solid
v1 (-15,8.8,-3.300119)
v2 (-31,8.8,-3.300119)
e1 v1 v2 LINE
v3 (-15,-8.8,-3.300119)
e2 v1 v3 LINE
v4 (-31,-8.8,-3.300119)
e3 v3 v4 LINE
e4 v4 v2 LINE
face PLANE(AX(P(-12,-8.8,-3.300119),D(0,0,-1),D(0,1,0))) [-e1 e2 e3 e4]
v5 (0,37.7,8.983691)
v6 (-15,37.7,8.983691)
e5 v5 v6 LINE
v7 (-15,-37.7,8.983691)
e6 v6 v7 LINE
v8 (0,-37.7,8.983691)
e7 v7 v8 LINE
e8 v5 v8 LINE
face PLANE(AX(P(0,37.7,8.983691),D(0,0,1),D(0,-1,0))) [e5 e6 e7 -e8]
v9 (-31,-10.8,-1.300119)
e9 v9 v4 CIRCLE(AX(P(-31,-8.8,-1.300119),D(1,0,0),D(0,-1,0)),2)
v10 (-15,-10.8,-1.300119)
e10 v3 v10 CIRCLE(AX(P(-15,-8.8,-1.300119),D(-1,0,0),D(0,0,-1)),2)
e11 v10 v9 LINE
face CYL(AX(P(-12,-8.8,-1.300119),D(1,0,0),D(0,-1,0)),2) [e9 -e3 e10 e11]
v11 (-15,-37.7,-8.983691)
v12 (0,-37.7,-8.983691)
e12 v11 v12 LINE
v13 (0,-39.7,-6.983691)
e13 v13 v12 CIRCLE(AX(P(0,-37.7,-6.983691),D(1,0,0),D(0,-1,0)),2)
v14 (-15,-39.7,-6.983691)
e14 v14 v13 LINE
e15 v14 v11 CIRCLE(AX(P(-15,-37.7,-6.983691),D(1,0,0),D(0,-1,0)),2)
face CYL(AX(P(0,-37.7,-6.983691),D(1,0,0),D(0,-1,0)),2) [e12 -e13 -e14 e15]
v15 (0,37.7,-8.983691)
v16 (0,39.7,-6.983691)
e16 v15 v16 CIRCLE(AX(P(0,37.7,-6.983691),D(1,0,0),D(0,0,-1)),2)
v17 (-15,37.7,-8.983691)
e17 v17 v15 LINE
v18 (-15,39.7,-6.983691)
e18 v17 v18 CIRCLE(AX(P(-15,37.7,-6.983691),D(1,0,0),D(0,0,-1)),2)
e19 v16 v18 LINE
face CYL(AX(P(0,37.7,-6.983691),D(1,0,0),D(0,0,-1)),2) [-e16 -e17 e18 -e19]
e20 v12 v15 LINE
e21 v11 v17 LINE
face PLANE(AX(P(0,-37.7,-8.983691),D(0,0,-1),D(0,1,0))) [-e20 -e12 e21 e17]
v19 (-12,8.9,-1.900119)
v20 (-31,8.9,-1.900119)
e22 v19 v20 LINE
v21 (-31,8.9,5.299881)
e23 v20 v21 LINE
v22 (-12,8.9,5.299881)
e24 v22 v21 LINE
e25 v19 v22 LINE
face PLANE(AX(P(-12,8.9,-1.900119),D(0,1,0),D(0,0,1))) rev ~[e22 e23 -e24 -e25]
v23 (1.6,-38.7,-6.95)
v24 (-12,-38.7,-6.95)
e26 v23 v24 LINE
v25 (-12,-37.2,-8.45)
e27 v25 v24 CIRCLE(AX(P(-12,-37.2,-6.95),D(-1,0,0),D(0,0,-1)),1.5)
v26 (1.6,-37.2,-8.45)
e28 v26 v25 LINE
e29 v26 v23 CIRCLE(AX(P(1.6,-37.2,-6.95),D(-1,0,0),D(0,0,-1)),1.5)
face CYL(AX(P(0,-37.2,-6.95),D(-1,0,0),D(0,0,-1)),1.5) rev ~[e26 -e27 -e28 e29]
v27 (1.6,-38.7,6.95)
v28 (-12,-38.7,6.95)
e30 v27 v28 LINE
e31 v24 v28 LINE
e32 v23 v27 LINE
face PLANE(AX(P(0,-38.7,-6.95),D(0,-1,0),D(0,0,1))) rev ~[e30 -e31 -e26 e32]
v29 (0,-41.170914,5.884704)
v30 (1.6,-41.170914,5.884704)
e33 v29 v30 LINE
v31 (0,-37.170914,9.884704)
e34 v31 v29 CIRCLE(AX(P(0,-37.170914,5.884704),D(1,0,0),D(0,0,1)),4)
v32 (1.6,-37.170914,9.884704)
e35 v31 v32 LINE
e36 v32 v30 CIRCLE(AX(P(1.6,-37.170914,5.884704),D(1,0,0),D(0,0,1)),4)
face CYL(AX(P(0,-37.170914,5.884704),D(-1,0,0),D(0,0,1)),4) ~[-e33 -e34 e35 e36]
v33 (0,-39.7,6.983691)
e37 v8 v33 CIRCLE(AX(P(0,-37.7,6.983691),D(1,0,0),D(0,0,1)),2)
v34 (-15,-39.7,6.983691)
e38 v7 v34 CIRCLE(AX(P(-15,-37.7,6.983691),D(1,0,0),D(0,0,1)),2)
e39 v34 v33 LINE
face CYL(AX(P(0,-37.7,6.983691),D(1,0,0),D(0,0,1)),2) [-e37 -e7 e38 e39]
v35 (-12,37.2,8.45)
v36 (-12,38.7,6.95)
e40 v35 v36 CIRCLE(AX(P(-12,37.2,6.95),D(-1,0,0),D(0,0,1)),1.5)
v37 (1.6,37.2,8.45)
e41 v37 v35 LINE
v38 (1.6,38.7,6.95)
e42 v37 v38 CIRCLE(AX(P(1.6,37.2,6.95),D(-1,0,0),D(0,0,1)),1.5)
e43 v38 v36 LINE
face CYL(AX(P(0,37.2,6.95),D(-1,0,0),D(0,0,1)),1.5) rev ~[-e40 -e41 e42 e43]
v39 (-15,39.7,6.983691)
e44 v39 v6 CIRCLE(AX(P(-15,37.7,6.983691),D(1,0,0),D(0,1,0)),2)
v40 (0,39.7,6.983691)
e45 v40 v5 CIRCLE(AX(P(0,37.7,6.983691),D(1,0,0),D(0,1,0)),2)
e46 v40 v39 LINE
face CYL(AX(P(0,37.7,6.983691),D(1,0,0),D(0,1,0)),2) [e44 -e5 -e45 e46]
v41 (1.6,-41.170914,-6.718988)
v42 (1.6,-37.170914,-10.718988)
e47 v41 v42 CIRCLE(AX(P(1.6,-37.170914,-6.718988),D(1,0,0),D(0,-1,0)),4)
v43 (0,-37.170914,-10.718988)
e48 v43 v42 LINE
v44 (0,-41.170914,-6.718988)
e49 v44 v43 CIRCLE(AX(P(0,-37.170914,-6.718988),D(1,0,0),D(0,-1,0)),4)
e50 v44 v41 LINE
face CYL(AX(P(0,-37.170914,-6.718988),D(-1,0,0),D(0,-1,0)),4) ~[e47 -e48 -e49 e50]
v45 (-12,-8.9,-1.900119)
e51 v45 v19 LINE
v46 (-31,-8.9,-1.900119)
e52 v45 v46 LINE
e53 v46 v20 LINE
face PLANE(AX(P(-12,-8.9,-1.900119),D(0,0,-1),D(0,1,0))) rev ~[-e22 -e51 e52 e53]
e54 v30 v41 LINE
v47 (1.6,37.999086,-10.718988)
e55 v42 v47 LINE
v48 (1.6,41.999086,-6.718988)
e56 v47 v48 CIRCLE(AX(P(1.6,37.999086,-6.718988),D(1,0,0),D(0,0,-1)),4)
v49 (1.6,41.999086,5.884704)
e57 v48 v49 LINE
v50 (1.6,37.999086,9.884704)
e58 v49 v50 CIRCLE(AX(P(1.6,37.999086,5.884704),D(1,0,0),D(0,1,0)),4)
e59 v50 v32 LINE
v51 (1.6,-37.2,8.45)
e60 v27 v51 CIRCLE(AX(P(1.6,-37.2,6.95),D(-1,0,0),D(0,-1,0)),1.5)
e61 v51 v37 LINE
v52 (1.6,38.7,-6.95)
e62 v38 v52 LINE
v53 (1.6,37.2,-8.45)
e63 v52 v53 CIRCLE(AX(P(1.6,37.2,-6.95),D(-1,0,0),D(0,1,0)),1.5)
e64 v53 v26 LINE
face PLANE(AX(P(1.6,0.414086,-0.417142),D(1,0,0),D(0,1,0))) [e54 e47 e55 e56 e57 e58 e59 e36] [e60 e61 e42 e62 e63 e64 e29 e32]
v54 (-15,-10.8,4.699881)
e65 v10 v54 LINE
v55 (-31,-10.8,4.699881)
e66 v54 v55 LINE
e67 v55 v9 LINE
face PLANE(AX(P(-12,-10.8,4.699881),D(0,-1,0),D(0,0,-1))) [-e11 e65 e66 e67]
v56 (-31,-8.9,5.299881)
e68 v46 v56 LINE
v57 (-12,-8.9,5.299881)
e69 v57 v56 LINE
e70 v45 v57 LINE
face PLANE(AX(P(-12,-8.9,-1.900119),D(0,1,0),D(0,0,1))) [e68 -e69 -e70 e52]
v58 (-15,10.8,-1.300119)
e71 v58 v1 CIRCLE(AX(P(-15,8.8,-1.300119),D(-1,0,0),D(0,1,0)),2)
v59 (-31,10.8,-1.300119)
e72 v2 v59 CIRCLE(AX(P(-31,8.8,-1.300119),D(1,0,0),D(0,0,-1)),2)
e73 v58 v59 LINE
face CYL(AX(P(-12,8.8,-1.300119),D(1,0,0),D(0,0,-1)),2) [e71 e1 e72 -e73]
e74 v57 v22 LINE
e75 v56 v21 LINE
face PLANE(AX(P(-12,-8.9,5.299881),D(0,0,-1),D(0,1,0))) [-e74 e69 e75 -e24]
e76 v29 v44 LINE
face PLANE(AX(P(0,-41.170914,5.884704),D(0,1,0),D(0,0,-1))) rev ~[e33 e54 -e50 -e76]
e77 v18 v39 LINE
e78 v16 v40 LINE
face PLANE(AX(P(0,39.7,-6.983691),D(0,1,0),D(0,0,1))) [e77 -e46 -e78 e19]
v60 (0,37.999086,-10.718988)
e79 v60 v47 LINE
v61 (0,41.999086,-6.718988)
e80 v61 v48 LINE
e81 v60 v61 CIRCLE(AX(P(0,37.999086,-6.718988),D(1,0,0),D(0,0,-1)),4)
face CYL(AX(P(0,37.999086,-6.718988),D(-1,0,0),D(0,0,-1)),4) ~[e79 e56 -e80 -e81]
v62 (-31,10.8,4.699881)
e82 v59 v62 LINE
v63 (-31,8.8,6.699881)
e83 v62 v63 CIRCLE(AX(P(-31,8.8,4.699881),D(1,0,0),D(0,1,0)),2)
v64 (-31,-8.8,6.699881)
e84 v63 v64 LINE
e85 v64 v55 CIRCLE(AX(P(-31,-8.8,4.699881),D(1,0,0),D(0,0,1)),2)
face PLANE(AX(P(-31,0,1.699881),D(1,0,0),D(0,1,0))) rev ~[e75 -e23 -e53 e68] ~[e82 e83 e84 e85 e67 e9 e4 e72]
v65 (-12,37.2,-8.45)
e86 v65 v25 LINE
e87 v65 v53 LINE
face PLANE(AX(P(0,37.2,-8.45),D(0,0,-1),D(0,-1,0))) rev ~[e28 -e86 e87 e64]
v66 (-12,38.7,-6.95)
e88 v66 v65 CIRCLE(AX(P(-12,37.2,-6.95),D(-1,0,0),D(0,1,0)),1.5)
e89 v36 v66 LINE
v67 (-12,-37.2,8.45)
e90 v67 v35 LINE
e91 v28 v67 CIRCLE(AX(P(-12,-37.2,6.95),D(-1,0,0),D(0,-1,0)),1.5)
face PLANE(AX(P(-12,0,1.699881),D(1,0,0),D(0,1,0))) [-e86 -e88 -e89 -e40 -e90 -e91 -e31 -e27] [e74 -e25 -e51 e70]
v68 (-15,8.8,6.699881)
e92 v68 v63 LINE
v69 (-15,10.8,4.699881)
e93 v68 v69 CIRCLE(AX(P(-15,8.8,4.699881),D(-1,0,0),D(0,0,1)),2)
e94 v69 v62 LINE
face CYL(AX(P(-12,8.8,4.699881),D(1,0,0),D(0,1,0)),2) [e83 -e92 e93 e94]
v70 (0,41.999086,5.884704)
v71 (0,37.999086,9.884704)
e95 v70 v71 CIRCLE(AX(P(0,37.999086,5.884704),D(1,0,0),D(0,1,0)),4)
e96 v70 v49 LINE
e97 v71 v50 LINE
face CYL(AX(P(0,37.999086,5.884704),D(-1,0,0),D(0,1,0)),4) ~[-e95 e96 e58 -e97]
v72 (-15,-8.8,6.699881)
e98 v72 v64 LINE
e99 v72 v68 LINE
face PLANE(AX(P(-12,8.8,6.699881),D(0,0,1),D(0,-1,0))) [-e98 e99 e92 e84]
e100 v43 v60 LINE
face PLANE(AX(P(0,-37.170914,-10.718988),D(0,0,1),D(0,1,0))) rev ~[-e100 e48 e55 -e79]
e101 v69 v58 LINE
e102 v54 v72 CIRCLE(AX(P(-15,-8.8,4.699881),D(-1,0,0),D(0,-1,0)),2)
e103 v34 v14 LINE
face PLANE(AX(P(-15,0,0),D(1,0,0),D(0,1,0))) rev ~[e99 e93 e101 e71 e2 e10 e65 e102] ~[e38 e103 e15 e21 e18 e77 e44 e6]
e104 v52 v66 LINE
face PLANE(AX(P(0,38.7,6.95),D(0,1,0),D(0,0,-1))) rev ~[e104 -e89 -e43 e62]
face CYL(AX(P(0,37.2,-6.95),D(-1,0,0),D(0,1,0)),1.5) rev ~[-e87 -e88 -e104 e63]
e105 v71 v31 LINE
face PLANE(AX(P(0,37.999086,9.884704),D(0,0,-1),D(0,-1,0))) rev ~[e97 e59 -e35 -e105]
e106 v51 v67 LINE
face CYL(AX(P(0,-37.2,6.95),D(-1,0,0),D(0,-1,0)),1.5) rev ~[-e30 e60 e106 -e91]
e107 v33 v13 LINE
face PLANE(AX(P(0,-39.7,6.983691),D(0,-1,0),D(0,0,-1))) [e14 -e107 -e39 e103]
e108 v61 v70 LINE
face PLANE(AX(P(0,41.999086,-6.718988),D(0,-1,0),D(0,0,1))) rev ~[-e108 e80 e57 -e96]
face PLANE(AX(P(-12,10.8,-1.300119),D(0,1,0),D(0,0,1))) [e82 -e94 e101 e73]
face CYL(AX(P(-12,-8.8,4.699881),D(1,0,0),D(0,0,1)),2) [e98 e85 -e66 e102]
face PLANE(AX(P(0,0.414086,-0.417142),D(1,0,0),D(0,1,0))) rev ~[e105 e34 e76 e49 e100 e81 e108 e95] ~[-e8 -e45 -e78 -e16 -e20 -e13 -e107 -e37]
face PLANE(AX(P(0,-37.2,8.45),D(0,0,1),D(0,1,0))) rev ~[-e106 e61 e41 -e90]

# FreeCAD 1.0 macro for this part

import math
import FreeCAD as App
import Part
import Sketcher

V = App.Vector

doc = App.newDocument("Part")
body = doc.addObject("PartDesign::Body", "Body")

# Sketch on YZ plane
sketch1 = body.newObject("Sketcher::SketchObject", "Sketch")
sketch1.AttachmentSupport = (doc.getObject("YZ_Plane"), [""])
sketch1.MapMode = "FlatFace"
sketch1.addGeometry([
    Part.LineSegment(V(37.7, 9, 0), V(-37.7, 9, 0)),  # 0
    Part.ArcOfCircle(Part.Circle(V(-37.7, 7, 0), V(0, 0, 1), 2), math.radians(90), math.radians(180)),  # 1
    Part.LineSegment(V(-39.7, 7, 0), V(-39.7, -7, 0)),  # 2
    Part.ArcOfCircle(Part.Circle(V(-37.7, -7, 0), V(0, 0, 1), 2), math.radians(180), math.radians(270)),  # 3
    Part.LineSegment(V(-37.7, -9, 0), V(37.7, -9, 0)),  # 4
    Part.ArcOfCircle(Part.Circle(V(37.7, -7, 0), V(0, 0, 1), 2), math.radians(-90), math.radians(0)),  # 5
    Part.LineSegment(V(39.7, -7, 0), V(39.7, 7, 0)),  # 6
    Part.ArcOfCircle(Part.Circle(V(37.7, 7, 0), V(0, 0, 1), 2), math.radians(0), math.radians(90)),  # 7
    Part.ArcOfCircle(Part.Circle(V(37.2, -7, 0), V(0, 0, 1), 1.5), math.radians(-90), math.radians(0)),  # 8
    Part.LineSegment(V(37.2, -8.4, 0), V(-37.2, -8.4, 0)),  # 9
    Part.ArcOfCircle(Part.Circle(V(-37.2, -7, 0), V(0, 0, 1), 1.5), math.radians(180), math.radians(270)),  # 10
    Part.LineSegment(V(-38.7, -7, 0), V(-38.7, 7, 0)),  # 11
    Part.ArcOfCircle(Part.Circle(V(-37.2, 7, 0), V(0, 0, 1), 1.5), math.radians(90), math.radians(180)),  # 12
    Part.LineSegment(V(-37.2, 8.4, 0), V(37.2, 8.4, 0)),  # 13
    Part.ArcOfCircle(Part.Circle(V(37.2, 7, 0), V(0, 0, 1), 1.5), math.radians(0), math.radians(90)),  # 14
    Part.LineSegment(V(38.7, 7, 0), V(38.7, -7, 0)),  # 15
], False)
sketch1.addConstraint([
    Sketcher.Constraint("Tangent", 0, 2, 1, 1),
    Sketcher.Constraint("Tangent", 1, 2, 2, 1),
    Sketcher.Constraint("Tangent", 2, 2, 3, 1),
    Sketcher.Constraint("Tangent", 3, 2, 4, 1),
    Sketcher.Constraint("Tangent", 4, 2, 5, 1),
    Sketcher.Constraint("Tangent", 5, 2, 6, 1),
    Sketcher.Constraint("Tangent", 6, 2, 7, 1),
    Sketcher.Constraint("Tangent", 7, 2, 0, 1),
    Sketcher.Constraint("Tangent", 8, 1, 9, 1),
    Sketcher.Constraint("Tangent", 9, 2, 10, 2),
    Sketcher.Constraint("Tangent", 10, 1, 11, 1),
    Sketcher.Constraint("Tangent", 11, 2, 12, 2),
    Sketcher.Constraint("Tangent", 12, 1, 13, 1),
    Sketcher.Constraint("Tangent", 13, 2, 14, 2),
    Sketcher.Constraint("Tangent", 14, 1, 15, 1),
    Sketcher.Constraint("Tangent", 15, 2, 8, 2),
    Sketcher.Constraint("Horizontal", 0),
    Sketcher.Constraint("Vertical", 2),
    Sketcher.Constraint("Horizontal", 4),
    Sketcher.Constraint("Vertical", 6),
    Sketcher.Constraint("Horizontal", 9),
    Sketcher.Constraint("Vertical", 11),
    Sketcher.Constraint("Horizontal", 13),
    Sketcher.Constraint("Vertical", 15),
    Sketcher.Constraint("Equal", 1, 3),
    Sketcher.Constraint("Equal", 3, 5),
    Sketcher.Constraint("Equal", 5, 7),
    Sketcher.Constraint("Equal", 8, 10),
    Sketcher.Constraint("Equal", 10, 12),
    Sketcher.Constraint("Equal", 12, 14),
    Sketcher.Constraint("Symmetric", 1, 3, 5, 3, -1, 1),
    Sketcher.Constraint("Symmetric", 8, 3, 12, 3, -1, 1),
    Sketcher.Constraint("Radius", 1, 2.0),
    Sketcher.Constraint("Radius", 8, 1.5),
    Sketcher.Constraint("DistanceX", 0, 2, 0, 1, 75.4),
    Sketcher.Constraint("DistanceX", 9, 2, 9, 1, 74.4),
    Sketcher.Constraint("DistanceY", 11, 1, 11, 2, 13.9),
    Sketcher.Constraint("DistanceY", 2, 2, 2, 1, 13.967382),
])
pad1 = body.newObject("PartDesign::Pad", "Pad")
pad1.Profile = sketch1
pad1.Length = 13
pad1.Reversed = True

# Sketch on YZ plane
sketch2 = body.newObject("Sketcher::SketchObject", "Sketch001")
sketch2.AttachmentSupport = (doc.getObject("YZ_Plane"), [""])
sketch2.MapMode = "FlatFace"
sketch2.addGeometry([
    Part.ArcOfCircle(Part.Circle(V(-37.2, -6.7, 0), V(0, 0, 1), 4), math.radians(180), math.radians(270)),  # 0
    Part.LineSegment(V(-37.2, -10.7, 0), V(38, -10.7, 0)),  # 1
    Part.ArcOfCircle(Part.Circle(V(38, -6.7, 0), V(0, 0, 1), 4), math.radians(-90), math.radians(0)),  # 2
    Part.LineSegment(V(42, -6.7, 0), V(42, 5.9, 0)),  # 3
    Part.ArcOfCircle(Part.Circle(V(38, 5.9, 0), V(0, 0, 1), 4), math.radians(0), math.radians(90)),  # 4
    Part.LineSegment(V(38, 9.9, 0), V(-37.2, 9.9, 0)),  # 5
    Part.ArcOfCircle(Part.Circle(V(-37.2, 5.9, 0), V(0, 0, 1), 4), math.radians(90), math.radians(180)),  # 6
    Part.LineSegment(V(-41.2, 5.9, 0), V(-41.2, -6.7, 0)),  # 7
    Part.ArcOfCircle(Part.Circle(V(37.2, -7, 0), V(0, 0, 1), 1.5), math.radians(-90), math.radians(0)),  # 8
    Part.LineSegment(V(37.2, -8.4, 0), V(-37.2, -8.4, 0)),  # 9
    Part.ArcOfCircle(Part.Circle(V(-37.2, -7, 0), V(0, 0, 1), 1.5), math.radians(180), math.radians(270)),  # 10
    Part.LineSegment(V(-38.7, -7, 0), V(-38.7, 7, 0)),  # 11
    Part.ArcOfCircle(Part.Circle(V(-37.2, 7, 0), V(0, 0, 1), 1.5), math.radians(90), math.radians(180)),  # 12
    Part.LineSegment(V(-37.2, 8.4, 0), V(37.2, 8.4, 0)),  # 13
    Part.ArcOfCircle(Part.Circle(V(37.2, 7, 0), V(0, 0, 1), 1.5), math.radians(0), math.radians(90)),  # 14
    Part.LineSegment(V(38.7, 7, 0), V(38.7, -7, 0)),  # 15
], False)
sketch2.addConstraint([
    Sketcher.Constraint("Tangent", 0, 2, 1, 1),
    Sketcher.Constraint("Tangent", 1, 2, 2, 1),
    Sketcher.Constraint("Tangent", 2, 2, 3, 1),
    Sketcher.Constraint("Tangent", 3, 2, 4, 1),
    Sketcher.Constraint("Tangent", 4, 2, 5, 1),
    Sketcher.Constraint("Tangent", 5, 2, 6, 1),
    Sketcher.Constraint("Tangent", 6, 2, 7, 1),
    Sketcher.Constraint("Tangent", 7, 2, 0, 1),
    Sketcher.Constraint("Tangent", 8, 1, 9, 1),
    Sketcher.Constraint("Tangent", 9, 2, 10, 2),
    Sketcher.Constraint("Tangent", 10, 1, 11, 1),
    Sketcher.Constraint("Tangent", 11, 2, 12, 2),
    Sketcher.Constraint("Tangent", 12, 1, 13, 1),
    Sketcher.Constraint("Tangent", 13, 2, 14, 2),
    Sketcher.Constraint("Tangent", 14, 1, 15, 1),
    Sketcher.Constraint("Tangent", 15, 2, 8, 2),
    Sketcher.Constraint("Horizontal", 1),
    Sketcher.Constraint("Vertical", 3),
    Sketcher.Constraint("Horizontal", 5),
    Sketcher.Constraint("Vertical", 7),
    Sketcher.Constraint("Horizontal", 9),
    Sketcher.Constraint("Vertical", 11),
    Sketcher.Constraint("Horizontal", 13),
    Sketcher.Constraint("Vertical", 15),
    Sketcher.Constraint("Equal", 0, 2),
    Sketcher.Constraint("Equal", 2, 4),
    Sketcher.Constraint("Equal", 4, 6),
    Sketcher.Constraint("Equal", 8, 10),
    Sketcher.Constraint("Equal", 10, 12),
    Sketcher.Constraint("Equal", 12, 14),
    Sketcher.Constraint("Symmetric", 8, 3, 12, 3, -1, 1),
    Sketcher.Constraint("Radius", 0, 4.0),
    Sketcher.Constraint("Radius", 8, 1.5),
    Sketcher.Constraint("DistanceX", 9, 2, 9, 1, 74.4),
    Sketcher.Constraint("DistanceY", 11, 1, 11, 2, 13.9),
    Sketcher.Constraint("DistanceX", 1, 1, 1, 2, 75.17),
    Sketcher.Constraint("DistanceY", 3, 1, 3, 2, 12.603691),
    Sketcher.Constraint("DistanceX", 0, 3, -1, 1, 37.170914),
    Sketcher.Constraint("DistanceY", 0, 3, -1, 1, 6.718988),
])
pad2 = body.newObject("PartDesign::Pad", "Pad001")
pad2.Profile = sketch2
pad2.Length = 1.6

# Sketch on YZ plane
sketch3 = body.newObject("Sketcher::SketchObject", "Sketch002")
sketch3.AttachmentSupport = (doc.getObject("YZ_Plane"), [""])
sketch3.MapMode = "FlatFace"
sketch3.AttachmentOffset = App.Placement(V(0, 0, -12), App.Rotation())
sketch3.addGeometry([
    Part.LineSegment(V(37.7, 9, 0), V(-37.7, 9, 0)),  # 0
    Part.ArcOfCircle(Part.Circle(V(-37.7, 7, 0), V(0, 0, 1), 2), math.radians(90), math.radians(180)),  # 1
    Part.LineSegment(V(-39.7, 7, 0), V(-39.7, -7, 0)),  # 2
    Part.ArcOfCircle(Part.Circle(V(-37.7, -7, 0), V(0, 0, 1), 2), math.radians(180), math.radians(270)),  # 3
    Part.LineSegment(V(-37.7, -9, 0), V(37.7, -9, 0)),  # 4
    Part.ArcOfCircle(Part.Circle(V(37.7, -7, 0), V(0, 0, 1), 2), math.radians(-90), math.radians(0)),  # 5
    Part.LineSegment(V(39.7, -7, 0), V(39.7, 7, 0)),  # 6
    Part.ArcOfCircle(Part.Circle(V(37.7, 7, 0), V(0, 0, 1), 2), math.radians(0), math.radians(90)),  # 7
    Part.LineSegment(V(10.8, 4.7, 0), V(10.8, -1.3, 0)),  # 8
    Part.ArcOfCircle(Part.Circle(V(8.8, -1.3, 0), V(0, 0, 1), 2), math.radians(-90), math.radians(0)),  # 9
    Part.LineSegment(V(8.8, -3.3, 0), V(-8.8, -3.3, 0)),  # 10
    Part.ArcOfCircle(Part.Circle(V(-8.8, -1.3, 0), V(0, 0, 1), 2), math.radians(180), math.radians(270)),  # 11
    Part.LineSegment(V(-10.8, -1.3, 0), V(-10.8, 4.7, 0)),  # 12
    Part.ArcOfCircle(Part.Circle(V(-8.8, 4.7, 0), V(0, 0, 1), 2), math.radians(90), math.radians(180)),  # 13
    Part.LineSegment(V(-8.8, 6.7, 0), V(8.8, 6.7, 0)),  # 14
    Part.ArcOfCircle(Part.Circle(V(8.8, 4.7, 0), V(0, 0, 1), 2), math.radians(0), math.radians(90)),  # 15
], False)
sketch3.addConstraint([
    Sketcher.Constraint("Tangent", 0, 2, 1, 1),
    Sketcher.Constraint("Tangent", 1, 2, 2, 1),
    Sketcher.Constraint("Tangent", 2, 2, 3, 1),
    Sketcher.Constraint("Tangent", 3, 2, 4, 1),
    Sketcher.Constraint("Tangent", 4, 2, 5, 1),
    Sketcher.Constraint("Tangent", 5, 2, 6, 1),
    Sketcher.Constraint("Tangent", 6, 2, 7, 1),
    Sketcher.Constraint("Tangent", 7, 2, 0, 1),
    Sketcher.Constraint("Tangent", 8, 2, 9, 2),
    Sketcher.Constraint("Tangent", 9, 1, 10, 1),
    Sketcher.Constraint("Tangent", 10, 2, 11, 2),
    Sketcher.Constraint("Tangent", 11, 1, 12, 1),
    Sketcher.Constraint("Tangent", 12, 2, 13, 2),
    Sketcher.Constraint("Tangent", 13, 1, 14, 1),
    Sketcher.Constraint("Tangent", 14, 2, 15, 2),
    Sketcher.Constraint("Tangent", 15, 1, 8, 1),
    Sketcher.Constraint("Horizontal", 0),
    Sketcher.Constraint("Vertical", 2),
    Sketcher.Constraint("Horizontal", 4),
    Sketcher.Constraint("Vertical", 6),
    Sketcher.Constraint("Vertical", 8),
    Sketcher.Constraint("Horizontal", 10),
    Sketcher.Constraint("Vertical", 12),
    Sketcher.Constraint("Horizontal", 14),
    Sketcher.Constraint("Equal", 1, 3),
    Sketcher.Constraint("Equal", 3, 5),
    Sketcher.Constraint("Equal", 5, 7),
    Sketcher.Constraint("Equal", 7, 9),
    Sketcher.Constraint("Equal", 9, 11),
    Sketcher.Constraint("Equal", 11, 13),
    Sketcher.Constraint("Equal", 13, 15),
    Sketcher.Constraint("Symmetric", 1, 3, 5, 3, -1, 1),
    Sketcher.Constraint("Radius", 1, 2.0),
    Sketcher.Constraint("DistanceY", 8, 2, 8, 1, 6.0),
    Sketcher.Constraint("DistanceX", 0, 2, 0, 1, 75.4),
    Sketcher.Constraint("DistanceX", 10, 2, 10, 1, 17.6),
    Sketcher.Constraint("DistanceX", -1, 1, 9, 3, 8.8),
    Sketcher.Constraint("DistanceY", 2, 2, 2, 1, 13.967382),
    Sketcher.Constraint("DistanceY", 9, 3, -1, 1, 1.300119),
])
pad3 = body.newObject("PartDesign::Pad", "Pad002")
pad3.Profile = sketch3
pad3.Length = 3
pad3.Reversed = True

# Sketch on YZ plane
sketch4 = body.newObject("Sketcher::SketchObject", "Sketch003")
sketch4.AttachmentSupport = (doc.getObject("YZ_Plane"), [""])
sketch4.MapMode = "FlatFace"
sketch4.AttachmentOffset = App.Placement(V(0, 0, -12), App.Rotation())
sketch4.addGeometry([
    Part.LineSegment(V(-8.8, -3.3, 0), V(8.8, -3.3, 0)),  # 0
    Part.ArcOfCircle(Part.Circle(V(8.8, -1.3, 0), V(0, 0, 1), 2), math.radians(-90), math.radians(0)),  # 1
    Part.LineSegment(V(10.8, -1.3, 0), V(10.8, 4.7, 0)),  # 2
    Part.ArcOfCircle(Part.Circle(V(8.8, 4.7, 0), V(0, 0, 1), 2), math.radians(0), math.radians(90)),  # 3
    Part.LineSegment(V(8.8, 6.7, 0), V(-8.8, 6.7, 0)),  # 4
    Part.ArcOfCircle(Part.Circle(V(-8.8, 4.7, 0), V(0, 0, 1), 2), math.radians(90), math.radians(180)),  # 5
    Part.LineSegment(V(-10.8, 4.7, 0), V(-10.8, -1.3, 0)),  # 6
    Part.ArcOfCircle(Part.Circle(V(-8.8, -1.3, 0), V(0, 0, 1), 2), math.radians(180), math.radians(270)),  # 7
    Part.LineSegment(V(8.9, -1.9, 0), V(-8.9, -1.9, 0)),  # 8
    Part.LineSegment(V(-8.9, -1.9, 0), V(-8.9, 5.3, 0)),  # 9
    Part.LineSegment(V(-8.9, 5.3, 0), V(8.9, 5.3, 0)),  # 10
    Part.LineSegment(V(8.9, 5.3, 0), V(8.9, -1.9, 0)),  # 11
], False)
sketch4.addConstraint([
    Sketcher.Constraint("Tangent", 0, 2, 1, 1),
    Sketcher.Constraint("Tangent", 1, 2, 2, 1),
    Sketcher.Constraint("Tangent", 2, 2, 3, 1),
    Sketcher.Constraint("Tangent", 3, 2, 4, 1),
    Sketcher.Constraint("Tangent", 4, 2, 5, 1),
    Sketcher.Constraint("Tangent", 5, 2, 6, 1),
    Sketcher.Constraint("Tangent", 6, 2, 7, 1),
    Sketcher.Constraint("Tangent", 7, 2, 0, 1),
    Sketcher.Constraint("Coincident", 8, 2, 9, 1),
    Sketcher.Constraint("Coincident", 9, 2, 10, 1),
    Sketcher.Constraint("Coincident", 10, 2, 11, 1),
    Sketcher.Constraint("Coincident", 11, 2, 8, 1),
    Sketcher.Constraint("Horizontal", 0),
    Sketcher.Constraint("Vertical", 2),
    Sketcher.Constraint("Horizontal", 4),
    Sketcher.Constraint("Vertical", 6),
    Sketcher.Constraint("Horizontal", 8),
    Sketcher.Constraint("Vertical", 9),
    Sketcher.Constraint("Horizontal", 10),
    Sketcher.Constraint("Vertical", 11),
    Sketcher.Constraint("Equal", 1, 3),
    Sketcher.Constraint("Equal", 3, 5),
    Sketcher.Constraint("Equal", 5, 7),
    Sketcher.Constraint("Radius", 1, 2.0),
    Sketcher.Constraint("DistanceY", 2, 1, 2, 2, 6.0),
    Sketcher.Constraint("DistanceX", 0, 1, 0, 2, 17.6),
    Sketcher.Constraint("DistanceX", 8, 2, 8, 1, 17.8),
    Sketcher.Constraint("DistanceY", 9, 1, 9, 2, 7.2),
    Sketcher.Constraint("DistanceX", -1, 1, 1, 3, 8.8),
    Sketcher.Constraint("DistanceX", 8, 2, -1, 1, 8.9),
    Sketcher.Constraint("DistanceY", 8, 2, 7, 3, 0.6),
    Sketcher.Constraint("DistanceY", 1, 3, -1, 1, 1.300119),
])
pad4 = body.newObject("PartDesign::Pad", "Pad003")
pad4.Profile = sketch4
pad4.Length = 19
pad4.Reversed = True

doc.recompute()
